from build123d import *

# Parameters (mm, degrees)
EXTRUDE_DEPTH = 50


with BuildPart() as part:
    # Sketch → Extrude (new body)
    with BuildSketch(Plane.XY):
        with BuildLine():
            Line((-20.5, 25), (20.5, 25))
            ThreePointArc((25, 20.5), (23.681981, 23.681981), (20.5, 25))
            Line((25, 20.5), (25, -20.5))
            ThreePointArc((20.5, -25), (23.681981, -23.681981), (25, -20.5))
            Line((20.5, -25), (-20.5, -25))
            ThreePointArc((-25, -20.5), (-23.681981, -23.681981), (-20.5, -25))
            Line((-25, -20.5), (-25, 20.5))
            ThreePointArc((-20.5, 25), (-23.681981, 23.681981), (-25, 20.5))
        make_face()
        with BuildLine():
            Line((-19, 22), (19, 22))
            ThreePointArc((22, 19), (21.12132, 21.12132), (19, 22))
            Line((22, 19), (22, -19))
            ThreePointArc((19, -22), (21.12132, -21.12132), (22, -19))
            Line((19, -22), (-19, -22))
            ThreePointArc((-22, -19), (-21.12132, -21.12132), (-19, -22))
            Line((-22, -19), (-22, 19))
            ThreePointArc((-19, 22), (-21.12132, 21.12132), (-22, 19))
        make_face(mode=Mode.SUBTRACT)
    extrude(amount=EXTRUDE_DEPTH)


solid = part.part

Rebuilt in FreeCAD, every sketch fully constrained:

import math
import FreeCAD as App
import Part
import Sketcher
from FreeCAD import Vector
Q = App.Units.Quantity

doc = App.newDocument("Part")
body = doc.addObject("PartDesign::Body", "Body")

# Sketch on XY plane
sketch1 = body.newObject("Sketcher::SketchObject", "Sketch")
sketch1.AttachmentSupport = (doc.getObject("XY_Plane"), [""])
sketch1.MapMode = "FlatFace"
sketch1.addGeometry([
    Part.LineSegment(Vector(20.5, 25, 0), Vector(-20.5, 25, 0)),  # 0
    Part.ArcOfCircle(Part.Circle(Vector(-20.500002, 20.500002, 0), Vector(0, 0, 1), 4.499998), math.radians(89.999979), math.radians(180.000021)),  # 1
    Part.LineSegment(Vector(-25, 20.5, 0), Vector(-25, -20.5, 0)),  # 2
    Part.ArcOfCircle(Part.Circle(Vector(-20.500002, -20.500002, 0), Vector(0, 0, 1), 4.499998), math.radians(179.999979), math.radians(270.000021)),  # 3
    Part.LineSegment(Vector(-20.5, -25, 0), Vector(20.5, -25, 0)),  # 4
    Part.ArcOfCircle(Part.Circle(Vector(20.500002, -20.500002, 0), Vector(0, 0, 1), 4.499998), math.radians(-90.000021), math.radians(0.000021)),  # 5
    Part.LineSegment(Vector(25, -20.5, 0), Vector(25, 20.5, 0)),  # 6
    Part.ArcOfCircle(Part.Circle(Vector(20.500002, 20.500002, 0), Vector(0, 0, 1), 4.499998), math.radians(-0.000021), math.radians(90.000021)),  # 7
    Part.LineSegment(Vector(-19, 22, 0), Vector(19, 22, 0)),  # 8
    Part.ArcOfCircle(Part.Circle(Vector(18.999999, 18.999999, 0), Vector(0, 0, 1), 3.000001), math.radians(0.000022), math.radians(89.999978)),  # 9
    Part.LineSegment(Vector(22, 19, 0), Vector(22, -19, 0)),  # 10
    Part.ArcOfCircle(Part.Circle(Vector(18.999999, -18.999999, 0), Vector(0, 0, 1), 3.000001), math.radians(-89.999978), math.radians(-0.000022)),  # 11
    Part.LineSegment(Vector(19, -22, 0), Vector(-19, -22, 0)),  # 12
    Part.ArcOfCircle(Part.Circle(Vector(-18.999999, -18.999999, 0), Vector(0, 0, 1), 3.000001), math.radians(-179.999978), math.radians(-90.000022)),  # 13
    Part.LineSegment(Vector(-22, -19, 0), Vector(-22, 19, 0)),  # 14
    Part.ArcOfCircle(Part.Circle(Vector(-18.999999, 18.999999, 0), Vector(0, 0, 1), 3.000001), math.radians(90.000022), math.radians(179.999978)),  # 15
], False)
sketch1.addConstraint([
    Sketcher.Constraint("Tangent", 0, 2, 1, 1),
    Sketcher.Constraint("Tangent", 1, 2, 2, 1),
    Sketcher.Constraint("Tangent", 2, 2, 3, 1),
    Sketcher.Constraint("Tangent", 3, 2, 4, 1),
    Sketcher.Constraint("Tangent", 4, 2, 5, 1),
    Sketcher.Constraint("Tangent", 5, 2, 6, 1),
    Sketcher.Constraint("Tangent", 6, 2, 7, 1),
    Sketcher.Constraint("Tangent", 7, 2, 0, 1),
    Sketcher.Constraint("Tangent", 8, 2, 9, 2),
    Sketcher.Constraint("Tangent", 9, 1, 10, 1),
    Sketcher.Constraint("Tangent", 10, 2, 11, 2),
    Sketcher.Constraint("Tangent", 11, 1, 12, 1),
    Sketcher.Constraint("Tangent", 12, 2, 13, 2),
    Sketcher.Constraint("Tangent", 13, 1, 14, 1),
    Sketcher.Constraint("Tangent", 14, 2, 15, 2),
    Sketcher.Constraint("Tangent", 15, 1, 8, 1),
    Sketcher.Constraint("Horizontal", 0),
    Sketcher.Constraint("Vertical", 2),
    Sketcher.Constraint("Horizontal", 4),
    Sketcher.Constraint("Vertical", 6),
    Sketcher.Constraint("Horizontal", 8),
    Sketcher.Constraint("Vertical", 10),
    Sketcher.Constraint("Horizontal", 12),
    Sketcher.Constraint("Vertical", 14),
    Sketcher.Constraint("Equal", 1, 3),
    Sketcher.Constraint("Equal", 3, 5),
    Sketcher.Constraint("Equal", 5, 7),
    Sketcher.Constraint("Equal", 9, 11),
    Sketcher.Constraint("Equal", 11, 13),
    Sketcher.Constraint("Equal", 13, 15),
    Sketcher.Constraint("Symmetric", 1, 3, 5, 3, -1, 1),
    Sketcher.Constraint("Symmetric", 9, 3, 13, 3, -1, 1),
    Sketcher.Constraint("Equal", 4, 2),
    Sketcher.Constraint("Equal", 12, 10),
    Sketcher.Constraint("Radius", 9, Q("3.000001 mm")),
    Sketcher.Constraint("Radius", 1, Q("4.499998 mm")),
    Sketcher.Constraint("DistanceX", 0, 2, 0, 1, Q("41 mm")),
    Sketcher.Constraint("DistanceX", 8, 1, 8, 2, Q("38 mm")),
])
pad1 = body.newObject("PartDesign::Pad", "Pad")
pad1.Profile = sketch1
pad1.Length = 50

doc.recompute()
